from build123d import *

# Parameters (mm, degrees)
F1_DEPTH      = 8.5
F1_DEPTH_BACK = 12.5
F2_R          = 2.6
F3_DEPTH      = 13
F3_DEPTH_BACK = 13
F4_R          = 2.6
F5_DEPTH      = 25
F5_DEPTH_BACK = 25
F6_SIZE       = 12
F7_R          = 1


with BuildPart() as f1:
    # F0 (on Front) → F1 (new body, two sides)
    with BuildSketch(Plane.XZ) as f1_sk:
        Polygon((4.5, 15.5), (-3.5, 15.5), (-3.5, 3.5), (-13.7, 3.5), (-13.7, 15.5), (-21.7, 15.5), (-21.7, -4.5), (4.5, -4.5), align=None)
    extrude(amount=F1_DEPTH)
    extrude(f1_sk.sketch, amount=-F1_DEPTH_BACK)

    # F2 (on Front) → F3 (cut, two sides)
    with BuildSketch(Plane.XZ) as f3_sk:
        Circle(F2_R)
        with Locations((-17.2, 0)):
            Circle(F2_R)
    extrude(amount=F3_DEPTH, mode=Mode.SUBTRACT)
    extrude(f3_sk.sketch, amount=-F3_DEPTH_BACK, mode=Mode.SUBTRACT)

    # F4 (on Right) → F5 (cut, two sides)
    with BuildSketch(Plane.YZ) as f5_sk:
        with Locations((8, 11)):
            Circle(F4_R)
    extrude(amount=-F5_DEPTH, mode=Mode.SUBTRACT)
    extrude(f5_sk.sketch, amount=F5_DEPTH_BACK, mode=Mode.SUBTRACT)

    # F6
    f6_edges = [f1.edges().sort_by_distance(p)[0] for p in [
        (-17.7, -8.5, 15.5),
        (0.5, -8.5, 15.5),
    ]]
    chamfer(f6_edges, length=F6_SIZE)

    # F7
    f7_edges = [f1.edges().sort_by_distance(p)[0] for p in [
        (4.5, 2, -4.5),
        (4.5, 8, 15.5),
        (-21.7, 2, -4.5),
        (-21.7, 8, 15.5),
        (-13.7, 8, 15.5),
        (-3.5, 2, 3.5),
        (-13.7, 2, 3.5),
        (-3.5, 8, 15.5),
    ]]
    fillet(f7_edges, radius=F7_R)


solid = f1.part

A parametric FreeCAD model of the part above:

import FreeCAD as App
import Part
import Sketcher


def edges_at(feature, points):
    """Names of the edges that pass closest to the given points."""
    edges = feature.Shape.Edges
    near = lambda p: min(range(len(edges)), key=lambda i: edges[i].distToShape(Part.Vertex(*p))[0])
    return sorted({f"Edge{near(p) + 1}" for p in points})

doc = App.newDocument("Part")
params = doc.addObject("Spreadsheet::Sheet", "Params")
for row, (alias, value) in enumerate([
    ("sketch1_width", "8 mm"),
    ("sketch1_height", "12 mm"),
    ("sketch1_height2", "20 mm"),
    ("sketch1_width2", "10.2 mm"),
    ("pad1_length", "8.5 mm"),
    ("pad1_length2", "12.5 mm"),
    ("sketch2_diameter", "5.2 mm"),
    ("sketch3_diameter", "5.2 mm"),
    ("chamfer_size", "12 mm"),
    ("fillet_radius", "1 mm"),
], start=1):
    params.set(f"A{row}", alias)
    params.set(f"B{row}", "=" + value)
    params.setAlias(f"B{row}", alias)

body = doc.addObject("PartDesign::Body", "Body")

sketch1 = body.newObject("Sketcher::SketchObject", "Sketch")
sketch1.AttachmentSupport = (doc.getObject("XZ_Plane"), [""])
sketch1.MapMode = "FlatFace"
sketch1.addGeometry(Part.LineSegment(App.Vector(4, 16, 0), App.Vector(-4, 16, 0)), False)
sketch1.addGeometry(Part.LineSegment(App.Vector(-4, 16, 0), App.Vector(-4, 4, 0)), False)
sketch1.addGeometry(Part.LineSegment(App.Vector(-4, 4, 0), App.Vector(-14, 4, 0)), False)
sketch1.addGeometry(Part.LineSegment(App.Vector(-14, 4, 0), App.Vector(-14, 16, 0)), False)
sketch1.addGeometry(Part.LineSegment(App.Vector(-14, 16, 0), App.Vector(-22, 16, 0)), False)
sketch1.addGeometry(Part.LineSegment(App.Vector(-22, 16, 0), App.Vector(-22, -4, 0)), False)
sketch1.addGeometry(Part.LineSegment(App.Vector(-22, -4, 0), App.Vector(4, -4, 0)), False)
sketch1.addGeometry(Part.LineSegment(App.Vector(4, -4, 0), App.Vector(4, 16, 0)), False)
sketch1.addConstraint(Sketcher.Constraint("Coincident", 0, 2, 1, 1))
sketch1.addConstraint(Sketcher.Constraint("Coincident", 1, 2, 2, 1))
sketch1.addConstraint(Sketcher.Constraint("Coincident", 2, 2, 3, 1))
sketch1.addConstraint(Sketcher.Constraint("Coincident", 3, 2, 4, 1))
sketch1.addConstraint(Sketcher.Constraint("Coincident", 4, 2, 5, 1))
sketch1.addConstraint(Sketcher.Constraint("Coincident", 5, 2, 6, 1))
sketch1.addConstraint(Sketcher.Constraint("Coincident", 6, 2, 7, 1))
sketch1.addConstraint(Sketcher.Constraint("Coincident", 7, 2, 0, 1))
sketch1.addConstraint(Sketcher.Constraint("Horizontal", 0))
sketch1.addConstraint(Sketcher.Constraint("Vertical", 1))
sketch1.addConstraint(Sketcher.Constraint("Horizontal", 2))
sketch1.addConstraint(Sketcher.Constraint("Vertical", 3))
sketch1.addConstraint(Sketcher.Constraint("Horizontal", 4))
sketch1.addConstraint(Sketcher.Constraint("Vertical", 5))
sketch1.addConstraint(Sketcher.Constraint("Horizontal", 6))
sketch1.addConstraint(Sketcher.Constraint("Vertical", 7))
sketch1.addConstraint(Sketcher.Constraint("Horizontal", 0, 2, 3, 2))
sketch1.addConstraint(Sketcher.Constraint("Equal", 0, 4))
sketch1.addConstraint(Sketcher.Constraint("DistanceX", 0, 2, 0, 1, 8.0))
sketch1.addConstraint(Sketcher.Constraint("DistanceY", 1, 2, 1, 1, 12.0))
sketch1.addConstraint(Sketcher.Constraint("DistanceY", 5, 2, 5, 1, 20.0))
sketch1.addConstraint(Sketcher.Constraint("DistanceX", 2, 2, 2, 1, 10.2))
sketch1.addConstraint(Sketcher.Constraint("DistanceX", 0, 2, -1, 1, 3.5))
sketch1.addConstraint(Sketcher.Constraint("DistanceY", -1, 1, 0, 2, 15.5))
sketch1.setExpression("Constraints[18]", "Params.sketch1_width")
sketch1.setExpression("Constraints[19]", "Params.sketch1_height")
sketch1.setExpression("Constraints[20]", "Params.sketch1_height2")
sketch1.setExpression("Constraints[21]", "Params.sketch1_width2")
pad1 = body.newObject("PartDesign::Pad", "Pad")
pad1.Profile = sketch1
pad1.Type = "TwoLengths"
pad1.setExpression("Length", "Params.pad1_length")
pad1.setExpression("Length2", "Params.pad1_length2")

sketch2 = body.newObject("Sketcher::SketchObject", "Sketch001")
sketch2.AttachmentSupport = (doc.getObject("XZ_Plane"), [""])
sketch2.MapMode = "FlatFace"
sketch2.addGeometry(Part.Circle(App.Vector(0, 0, 0), App.Vector(0, 0, 1), 2.6), False)
sketch2.addGeometry(Part.Circle(App.Vector(-17.2, 0, 0), App.Vector(0, 0, 1), 2.6), False)
sketch2.addConstraint(Sketcher.Constraint("Coincident", 0, 3, -1, 1))
sketch2.addConstraint(Sketcher.Constraint("Equal", 0, 1))
sketch2.addConstraint(Sketcher.Constraint("PointOnObject", 1, 3, -1))
sketch2.addConstraint(Sketcher.Constraint("Diameter", 0, 5.2))
sketch2.addConstraint(Sketcher.Constraint("DistanceX", 1, 3, -1, 1, 17.2))
sketch2.setExpression("Constraints[3]", "Params.sketch2_diameter")
pocket1 = body.newObject("PartDesign::Pocket", "Pocket")
pocket1.Profile = sketch2
pocket1.Type = "ThroughAll"
pocket1.Midplane = True

sketch3 = body.newObject("Sketcher::SketchObject", "Sketch002")
sketch3.AttachmentSupport = (doc.getObject("YZ_Plane"), [""])
sketch3.MapMode = "FlatFace"
sketch3.addGeometry(Part.Circle(App.Vector(8, 11, 0), App.Vector(0, 0, 1), 2.6), False)
sketch3.addConstraint(Sketcher.Constraint("Diameter", 0, 5.2))
sketch3.addConstraint(Sketcher.Constraint("DistanceX", -1, 1, 0, 3, 8.0))
sketch3.addConstraint(Sketcher.Constraint("DistanceY", -1, 1, 0, 3, 11.0))
sketch3.setExpression("Constraints[0]", "Params.sketch3_diameter")
pocket2 = body.newObject("PartDesign::Pocket", "Pocket001")
pocket2.Profile = sketch3
pocket2.Type = "ThroughAll"
pocket2.Midplane = True
doc.recompute()

chamfer = body.newObject("PartDesign::Chamfer", "Chamfer")
chamfer.Base = (pocket2, edges_at(pocket2, [(-17.7, -8.5, 15.5), (0.5, -8.5, 15.5)]))
chamfer.setExpression("Size", "Params.chamfer_size")
doc.recompute()

fillet = body.newObject("PartDesign::Fillet", "Fillet")
fillet.Base = (chamfer, edges_at(chamfer, [
    (4.5, 2, -4.5),
    (4.5, 8, 15.5),
    (-21.7, 2, -4.5),
    (-21.7, 8, 15.5),
    (-13.7, 8, 15.5),
    (-3.5, 2, 3.5),
    (-13.7, 2, 3.5),
    (-3.5, 8, 15.5),
]))
fillet.setExpression("Radius", "Params.fillet_radius")

doc.recompute()
